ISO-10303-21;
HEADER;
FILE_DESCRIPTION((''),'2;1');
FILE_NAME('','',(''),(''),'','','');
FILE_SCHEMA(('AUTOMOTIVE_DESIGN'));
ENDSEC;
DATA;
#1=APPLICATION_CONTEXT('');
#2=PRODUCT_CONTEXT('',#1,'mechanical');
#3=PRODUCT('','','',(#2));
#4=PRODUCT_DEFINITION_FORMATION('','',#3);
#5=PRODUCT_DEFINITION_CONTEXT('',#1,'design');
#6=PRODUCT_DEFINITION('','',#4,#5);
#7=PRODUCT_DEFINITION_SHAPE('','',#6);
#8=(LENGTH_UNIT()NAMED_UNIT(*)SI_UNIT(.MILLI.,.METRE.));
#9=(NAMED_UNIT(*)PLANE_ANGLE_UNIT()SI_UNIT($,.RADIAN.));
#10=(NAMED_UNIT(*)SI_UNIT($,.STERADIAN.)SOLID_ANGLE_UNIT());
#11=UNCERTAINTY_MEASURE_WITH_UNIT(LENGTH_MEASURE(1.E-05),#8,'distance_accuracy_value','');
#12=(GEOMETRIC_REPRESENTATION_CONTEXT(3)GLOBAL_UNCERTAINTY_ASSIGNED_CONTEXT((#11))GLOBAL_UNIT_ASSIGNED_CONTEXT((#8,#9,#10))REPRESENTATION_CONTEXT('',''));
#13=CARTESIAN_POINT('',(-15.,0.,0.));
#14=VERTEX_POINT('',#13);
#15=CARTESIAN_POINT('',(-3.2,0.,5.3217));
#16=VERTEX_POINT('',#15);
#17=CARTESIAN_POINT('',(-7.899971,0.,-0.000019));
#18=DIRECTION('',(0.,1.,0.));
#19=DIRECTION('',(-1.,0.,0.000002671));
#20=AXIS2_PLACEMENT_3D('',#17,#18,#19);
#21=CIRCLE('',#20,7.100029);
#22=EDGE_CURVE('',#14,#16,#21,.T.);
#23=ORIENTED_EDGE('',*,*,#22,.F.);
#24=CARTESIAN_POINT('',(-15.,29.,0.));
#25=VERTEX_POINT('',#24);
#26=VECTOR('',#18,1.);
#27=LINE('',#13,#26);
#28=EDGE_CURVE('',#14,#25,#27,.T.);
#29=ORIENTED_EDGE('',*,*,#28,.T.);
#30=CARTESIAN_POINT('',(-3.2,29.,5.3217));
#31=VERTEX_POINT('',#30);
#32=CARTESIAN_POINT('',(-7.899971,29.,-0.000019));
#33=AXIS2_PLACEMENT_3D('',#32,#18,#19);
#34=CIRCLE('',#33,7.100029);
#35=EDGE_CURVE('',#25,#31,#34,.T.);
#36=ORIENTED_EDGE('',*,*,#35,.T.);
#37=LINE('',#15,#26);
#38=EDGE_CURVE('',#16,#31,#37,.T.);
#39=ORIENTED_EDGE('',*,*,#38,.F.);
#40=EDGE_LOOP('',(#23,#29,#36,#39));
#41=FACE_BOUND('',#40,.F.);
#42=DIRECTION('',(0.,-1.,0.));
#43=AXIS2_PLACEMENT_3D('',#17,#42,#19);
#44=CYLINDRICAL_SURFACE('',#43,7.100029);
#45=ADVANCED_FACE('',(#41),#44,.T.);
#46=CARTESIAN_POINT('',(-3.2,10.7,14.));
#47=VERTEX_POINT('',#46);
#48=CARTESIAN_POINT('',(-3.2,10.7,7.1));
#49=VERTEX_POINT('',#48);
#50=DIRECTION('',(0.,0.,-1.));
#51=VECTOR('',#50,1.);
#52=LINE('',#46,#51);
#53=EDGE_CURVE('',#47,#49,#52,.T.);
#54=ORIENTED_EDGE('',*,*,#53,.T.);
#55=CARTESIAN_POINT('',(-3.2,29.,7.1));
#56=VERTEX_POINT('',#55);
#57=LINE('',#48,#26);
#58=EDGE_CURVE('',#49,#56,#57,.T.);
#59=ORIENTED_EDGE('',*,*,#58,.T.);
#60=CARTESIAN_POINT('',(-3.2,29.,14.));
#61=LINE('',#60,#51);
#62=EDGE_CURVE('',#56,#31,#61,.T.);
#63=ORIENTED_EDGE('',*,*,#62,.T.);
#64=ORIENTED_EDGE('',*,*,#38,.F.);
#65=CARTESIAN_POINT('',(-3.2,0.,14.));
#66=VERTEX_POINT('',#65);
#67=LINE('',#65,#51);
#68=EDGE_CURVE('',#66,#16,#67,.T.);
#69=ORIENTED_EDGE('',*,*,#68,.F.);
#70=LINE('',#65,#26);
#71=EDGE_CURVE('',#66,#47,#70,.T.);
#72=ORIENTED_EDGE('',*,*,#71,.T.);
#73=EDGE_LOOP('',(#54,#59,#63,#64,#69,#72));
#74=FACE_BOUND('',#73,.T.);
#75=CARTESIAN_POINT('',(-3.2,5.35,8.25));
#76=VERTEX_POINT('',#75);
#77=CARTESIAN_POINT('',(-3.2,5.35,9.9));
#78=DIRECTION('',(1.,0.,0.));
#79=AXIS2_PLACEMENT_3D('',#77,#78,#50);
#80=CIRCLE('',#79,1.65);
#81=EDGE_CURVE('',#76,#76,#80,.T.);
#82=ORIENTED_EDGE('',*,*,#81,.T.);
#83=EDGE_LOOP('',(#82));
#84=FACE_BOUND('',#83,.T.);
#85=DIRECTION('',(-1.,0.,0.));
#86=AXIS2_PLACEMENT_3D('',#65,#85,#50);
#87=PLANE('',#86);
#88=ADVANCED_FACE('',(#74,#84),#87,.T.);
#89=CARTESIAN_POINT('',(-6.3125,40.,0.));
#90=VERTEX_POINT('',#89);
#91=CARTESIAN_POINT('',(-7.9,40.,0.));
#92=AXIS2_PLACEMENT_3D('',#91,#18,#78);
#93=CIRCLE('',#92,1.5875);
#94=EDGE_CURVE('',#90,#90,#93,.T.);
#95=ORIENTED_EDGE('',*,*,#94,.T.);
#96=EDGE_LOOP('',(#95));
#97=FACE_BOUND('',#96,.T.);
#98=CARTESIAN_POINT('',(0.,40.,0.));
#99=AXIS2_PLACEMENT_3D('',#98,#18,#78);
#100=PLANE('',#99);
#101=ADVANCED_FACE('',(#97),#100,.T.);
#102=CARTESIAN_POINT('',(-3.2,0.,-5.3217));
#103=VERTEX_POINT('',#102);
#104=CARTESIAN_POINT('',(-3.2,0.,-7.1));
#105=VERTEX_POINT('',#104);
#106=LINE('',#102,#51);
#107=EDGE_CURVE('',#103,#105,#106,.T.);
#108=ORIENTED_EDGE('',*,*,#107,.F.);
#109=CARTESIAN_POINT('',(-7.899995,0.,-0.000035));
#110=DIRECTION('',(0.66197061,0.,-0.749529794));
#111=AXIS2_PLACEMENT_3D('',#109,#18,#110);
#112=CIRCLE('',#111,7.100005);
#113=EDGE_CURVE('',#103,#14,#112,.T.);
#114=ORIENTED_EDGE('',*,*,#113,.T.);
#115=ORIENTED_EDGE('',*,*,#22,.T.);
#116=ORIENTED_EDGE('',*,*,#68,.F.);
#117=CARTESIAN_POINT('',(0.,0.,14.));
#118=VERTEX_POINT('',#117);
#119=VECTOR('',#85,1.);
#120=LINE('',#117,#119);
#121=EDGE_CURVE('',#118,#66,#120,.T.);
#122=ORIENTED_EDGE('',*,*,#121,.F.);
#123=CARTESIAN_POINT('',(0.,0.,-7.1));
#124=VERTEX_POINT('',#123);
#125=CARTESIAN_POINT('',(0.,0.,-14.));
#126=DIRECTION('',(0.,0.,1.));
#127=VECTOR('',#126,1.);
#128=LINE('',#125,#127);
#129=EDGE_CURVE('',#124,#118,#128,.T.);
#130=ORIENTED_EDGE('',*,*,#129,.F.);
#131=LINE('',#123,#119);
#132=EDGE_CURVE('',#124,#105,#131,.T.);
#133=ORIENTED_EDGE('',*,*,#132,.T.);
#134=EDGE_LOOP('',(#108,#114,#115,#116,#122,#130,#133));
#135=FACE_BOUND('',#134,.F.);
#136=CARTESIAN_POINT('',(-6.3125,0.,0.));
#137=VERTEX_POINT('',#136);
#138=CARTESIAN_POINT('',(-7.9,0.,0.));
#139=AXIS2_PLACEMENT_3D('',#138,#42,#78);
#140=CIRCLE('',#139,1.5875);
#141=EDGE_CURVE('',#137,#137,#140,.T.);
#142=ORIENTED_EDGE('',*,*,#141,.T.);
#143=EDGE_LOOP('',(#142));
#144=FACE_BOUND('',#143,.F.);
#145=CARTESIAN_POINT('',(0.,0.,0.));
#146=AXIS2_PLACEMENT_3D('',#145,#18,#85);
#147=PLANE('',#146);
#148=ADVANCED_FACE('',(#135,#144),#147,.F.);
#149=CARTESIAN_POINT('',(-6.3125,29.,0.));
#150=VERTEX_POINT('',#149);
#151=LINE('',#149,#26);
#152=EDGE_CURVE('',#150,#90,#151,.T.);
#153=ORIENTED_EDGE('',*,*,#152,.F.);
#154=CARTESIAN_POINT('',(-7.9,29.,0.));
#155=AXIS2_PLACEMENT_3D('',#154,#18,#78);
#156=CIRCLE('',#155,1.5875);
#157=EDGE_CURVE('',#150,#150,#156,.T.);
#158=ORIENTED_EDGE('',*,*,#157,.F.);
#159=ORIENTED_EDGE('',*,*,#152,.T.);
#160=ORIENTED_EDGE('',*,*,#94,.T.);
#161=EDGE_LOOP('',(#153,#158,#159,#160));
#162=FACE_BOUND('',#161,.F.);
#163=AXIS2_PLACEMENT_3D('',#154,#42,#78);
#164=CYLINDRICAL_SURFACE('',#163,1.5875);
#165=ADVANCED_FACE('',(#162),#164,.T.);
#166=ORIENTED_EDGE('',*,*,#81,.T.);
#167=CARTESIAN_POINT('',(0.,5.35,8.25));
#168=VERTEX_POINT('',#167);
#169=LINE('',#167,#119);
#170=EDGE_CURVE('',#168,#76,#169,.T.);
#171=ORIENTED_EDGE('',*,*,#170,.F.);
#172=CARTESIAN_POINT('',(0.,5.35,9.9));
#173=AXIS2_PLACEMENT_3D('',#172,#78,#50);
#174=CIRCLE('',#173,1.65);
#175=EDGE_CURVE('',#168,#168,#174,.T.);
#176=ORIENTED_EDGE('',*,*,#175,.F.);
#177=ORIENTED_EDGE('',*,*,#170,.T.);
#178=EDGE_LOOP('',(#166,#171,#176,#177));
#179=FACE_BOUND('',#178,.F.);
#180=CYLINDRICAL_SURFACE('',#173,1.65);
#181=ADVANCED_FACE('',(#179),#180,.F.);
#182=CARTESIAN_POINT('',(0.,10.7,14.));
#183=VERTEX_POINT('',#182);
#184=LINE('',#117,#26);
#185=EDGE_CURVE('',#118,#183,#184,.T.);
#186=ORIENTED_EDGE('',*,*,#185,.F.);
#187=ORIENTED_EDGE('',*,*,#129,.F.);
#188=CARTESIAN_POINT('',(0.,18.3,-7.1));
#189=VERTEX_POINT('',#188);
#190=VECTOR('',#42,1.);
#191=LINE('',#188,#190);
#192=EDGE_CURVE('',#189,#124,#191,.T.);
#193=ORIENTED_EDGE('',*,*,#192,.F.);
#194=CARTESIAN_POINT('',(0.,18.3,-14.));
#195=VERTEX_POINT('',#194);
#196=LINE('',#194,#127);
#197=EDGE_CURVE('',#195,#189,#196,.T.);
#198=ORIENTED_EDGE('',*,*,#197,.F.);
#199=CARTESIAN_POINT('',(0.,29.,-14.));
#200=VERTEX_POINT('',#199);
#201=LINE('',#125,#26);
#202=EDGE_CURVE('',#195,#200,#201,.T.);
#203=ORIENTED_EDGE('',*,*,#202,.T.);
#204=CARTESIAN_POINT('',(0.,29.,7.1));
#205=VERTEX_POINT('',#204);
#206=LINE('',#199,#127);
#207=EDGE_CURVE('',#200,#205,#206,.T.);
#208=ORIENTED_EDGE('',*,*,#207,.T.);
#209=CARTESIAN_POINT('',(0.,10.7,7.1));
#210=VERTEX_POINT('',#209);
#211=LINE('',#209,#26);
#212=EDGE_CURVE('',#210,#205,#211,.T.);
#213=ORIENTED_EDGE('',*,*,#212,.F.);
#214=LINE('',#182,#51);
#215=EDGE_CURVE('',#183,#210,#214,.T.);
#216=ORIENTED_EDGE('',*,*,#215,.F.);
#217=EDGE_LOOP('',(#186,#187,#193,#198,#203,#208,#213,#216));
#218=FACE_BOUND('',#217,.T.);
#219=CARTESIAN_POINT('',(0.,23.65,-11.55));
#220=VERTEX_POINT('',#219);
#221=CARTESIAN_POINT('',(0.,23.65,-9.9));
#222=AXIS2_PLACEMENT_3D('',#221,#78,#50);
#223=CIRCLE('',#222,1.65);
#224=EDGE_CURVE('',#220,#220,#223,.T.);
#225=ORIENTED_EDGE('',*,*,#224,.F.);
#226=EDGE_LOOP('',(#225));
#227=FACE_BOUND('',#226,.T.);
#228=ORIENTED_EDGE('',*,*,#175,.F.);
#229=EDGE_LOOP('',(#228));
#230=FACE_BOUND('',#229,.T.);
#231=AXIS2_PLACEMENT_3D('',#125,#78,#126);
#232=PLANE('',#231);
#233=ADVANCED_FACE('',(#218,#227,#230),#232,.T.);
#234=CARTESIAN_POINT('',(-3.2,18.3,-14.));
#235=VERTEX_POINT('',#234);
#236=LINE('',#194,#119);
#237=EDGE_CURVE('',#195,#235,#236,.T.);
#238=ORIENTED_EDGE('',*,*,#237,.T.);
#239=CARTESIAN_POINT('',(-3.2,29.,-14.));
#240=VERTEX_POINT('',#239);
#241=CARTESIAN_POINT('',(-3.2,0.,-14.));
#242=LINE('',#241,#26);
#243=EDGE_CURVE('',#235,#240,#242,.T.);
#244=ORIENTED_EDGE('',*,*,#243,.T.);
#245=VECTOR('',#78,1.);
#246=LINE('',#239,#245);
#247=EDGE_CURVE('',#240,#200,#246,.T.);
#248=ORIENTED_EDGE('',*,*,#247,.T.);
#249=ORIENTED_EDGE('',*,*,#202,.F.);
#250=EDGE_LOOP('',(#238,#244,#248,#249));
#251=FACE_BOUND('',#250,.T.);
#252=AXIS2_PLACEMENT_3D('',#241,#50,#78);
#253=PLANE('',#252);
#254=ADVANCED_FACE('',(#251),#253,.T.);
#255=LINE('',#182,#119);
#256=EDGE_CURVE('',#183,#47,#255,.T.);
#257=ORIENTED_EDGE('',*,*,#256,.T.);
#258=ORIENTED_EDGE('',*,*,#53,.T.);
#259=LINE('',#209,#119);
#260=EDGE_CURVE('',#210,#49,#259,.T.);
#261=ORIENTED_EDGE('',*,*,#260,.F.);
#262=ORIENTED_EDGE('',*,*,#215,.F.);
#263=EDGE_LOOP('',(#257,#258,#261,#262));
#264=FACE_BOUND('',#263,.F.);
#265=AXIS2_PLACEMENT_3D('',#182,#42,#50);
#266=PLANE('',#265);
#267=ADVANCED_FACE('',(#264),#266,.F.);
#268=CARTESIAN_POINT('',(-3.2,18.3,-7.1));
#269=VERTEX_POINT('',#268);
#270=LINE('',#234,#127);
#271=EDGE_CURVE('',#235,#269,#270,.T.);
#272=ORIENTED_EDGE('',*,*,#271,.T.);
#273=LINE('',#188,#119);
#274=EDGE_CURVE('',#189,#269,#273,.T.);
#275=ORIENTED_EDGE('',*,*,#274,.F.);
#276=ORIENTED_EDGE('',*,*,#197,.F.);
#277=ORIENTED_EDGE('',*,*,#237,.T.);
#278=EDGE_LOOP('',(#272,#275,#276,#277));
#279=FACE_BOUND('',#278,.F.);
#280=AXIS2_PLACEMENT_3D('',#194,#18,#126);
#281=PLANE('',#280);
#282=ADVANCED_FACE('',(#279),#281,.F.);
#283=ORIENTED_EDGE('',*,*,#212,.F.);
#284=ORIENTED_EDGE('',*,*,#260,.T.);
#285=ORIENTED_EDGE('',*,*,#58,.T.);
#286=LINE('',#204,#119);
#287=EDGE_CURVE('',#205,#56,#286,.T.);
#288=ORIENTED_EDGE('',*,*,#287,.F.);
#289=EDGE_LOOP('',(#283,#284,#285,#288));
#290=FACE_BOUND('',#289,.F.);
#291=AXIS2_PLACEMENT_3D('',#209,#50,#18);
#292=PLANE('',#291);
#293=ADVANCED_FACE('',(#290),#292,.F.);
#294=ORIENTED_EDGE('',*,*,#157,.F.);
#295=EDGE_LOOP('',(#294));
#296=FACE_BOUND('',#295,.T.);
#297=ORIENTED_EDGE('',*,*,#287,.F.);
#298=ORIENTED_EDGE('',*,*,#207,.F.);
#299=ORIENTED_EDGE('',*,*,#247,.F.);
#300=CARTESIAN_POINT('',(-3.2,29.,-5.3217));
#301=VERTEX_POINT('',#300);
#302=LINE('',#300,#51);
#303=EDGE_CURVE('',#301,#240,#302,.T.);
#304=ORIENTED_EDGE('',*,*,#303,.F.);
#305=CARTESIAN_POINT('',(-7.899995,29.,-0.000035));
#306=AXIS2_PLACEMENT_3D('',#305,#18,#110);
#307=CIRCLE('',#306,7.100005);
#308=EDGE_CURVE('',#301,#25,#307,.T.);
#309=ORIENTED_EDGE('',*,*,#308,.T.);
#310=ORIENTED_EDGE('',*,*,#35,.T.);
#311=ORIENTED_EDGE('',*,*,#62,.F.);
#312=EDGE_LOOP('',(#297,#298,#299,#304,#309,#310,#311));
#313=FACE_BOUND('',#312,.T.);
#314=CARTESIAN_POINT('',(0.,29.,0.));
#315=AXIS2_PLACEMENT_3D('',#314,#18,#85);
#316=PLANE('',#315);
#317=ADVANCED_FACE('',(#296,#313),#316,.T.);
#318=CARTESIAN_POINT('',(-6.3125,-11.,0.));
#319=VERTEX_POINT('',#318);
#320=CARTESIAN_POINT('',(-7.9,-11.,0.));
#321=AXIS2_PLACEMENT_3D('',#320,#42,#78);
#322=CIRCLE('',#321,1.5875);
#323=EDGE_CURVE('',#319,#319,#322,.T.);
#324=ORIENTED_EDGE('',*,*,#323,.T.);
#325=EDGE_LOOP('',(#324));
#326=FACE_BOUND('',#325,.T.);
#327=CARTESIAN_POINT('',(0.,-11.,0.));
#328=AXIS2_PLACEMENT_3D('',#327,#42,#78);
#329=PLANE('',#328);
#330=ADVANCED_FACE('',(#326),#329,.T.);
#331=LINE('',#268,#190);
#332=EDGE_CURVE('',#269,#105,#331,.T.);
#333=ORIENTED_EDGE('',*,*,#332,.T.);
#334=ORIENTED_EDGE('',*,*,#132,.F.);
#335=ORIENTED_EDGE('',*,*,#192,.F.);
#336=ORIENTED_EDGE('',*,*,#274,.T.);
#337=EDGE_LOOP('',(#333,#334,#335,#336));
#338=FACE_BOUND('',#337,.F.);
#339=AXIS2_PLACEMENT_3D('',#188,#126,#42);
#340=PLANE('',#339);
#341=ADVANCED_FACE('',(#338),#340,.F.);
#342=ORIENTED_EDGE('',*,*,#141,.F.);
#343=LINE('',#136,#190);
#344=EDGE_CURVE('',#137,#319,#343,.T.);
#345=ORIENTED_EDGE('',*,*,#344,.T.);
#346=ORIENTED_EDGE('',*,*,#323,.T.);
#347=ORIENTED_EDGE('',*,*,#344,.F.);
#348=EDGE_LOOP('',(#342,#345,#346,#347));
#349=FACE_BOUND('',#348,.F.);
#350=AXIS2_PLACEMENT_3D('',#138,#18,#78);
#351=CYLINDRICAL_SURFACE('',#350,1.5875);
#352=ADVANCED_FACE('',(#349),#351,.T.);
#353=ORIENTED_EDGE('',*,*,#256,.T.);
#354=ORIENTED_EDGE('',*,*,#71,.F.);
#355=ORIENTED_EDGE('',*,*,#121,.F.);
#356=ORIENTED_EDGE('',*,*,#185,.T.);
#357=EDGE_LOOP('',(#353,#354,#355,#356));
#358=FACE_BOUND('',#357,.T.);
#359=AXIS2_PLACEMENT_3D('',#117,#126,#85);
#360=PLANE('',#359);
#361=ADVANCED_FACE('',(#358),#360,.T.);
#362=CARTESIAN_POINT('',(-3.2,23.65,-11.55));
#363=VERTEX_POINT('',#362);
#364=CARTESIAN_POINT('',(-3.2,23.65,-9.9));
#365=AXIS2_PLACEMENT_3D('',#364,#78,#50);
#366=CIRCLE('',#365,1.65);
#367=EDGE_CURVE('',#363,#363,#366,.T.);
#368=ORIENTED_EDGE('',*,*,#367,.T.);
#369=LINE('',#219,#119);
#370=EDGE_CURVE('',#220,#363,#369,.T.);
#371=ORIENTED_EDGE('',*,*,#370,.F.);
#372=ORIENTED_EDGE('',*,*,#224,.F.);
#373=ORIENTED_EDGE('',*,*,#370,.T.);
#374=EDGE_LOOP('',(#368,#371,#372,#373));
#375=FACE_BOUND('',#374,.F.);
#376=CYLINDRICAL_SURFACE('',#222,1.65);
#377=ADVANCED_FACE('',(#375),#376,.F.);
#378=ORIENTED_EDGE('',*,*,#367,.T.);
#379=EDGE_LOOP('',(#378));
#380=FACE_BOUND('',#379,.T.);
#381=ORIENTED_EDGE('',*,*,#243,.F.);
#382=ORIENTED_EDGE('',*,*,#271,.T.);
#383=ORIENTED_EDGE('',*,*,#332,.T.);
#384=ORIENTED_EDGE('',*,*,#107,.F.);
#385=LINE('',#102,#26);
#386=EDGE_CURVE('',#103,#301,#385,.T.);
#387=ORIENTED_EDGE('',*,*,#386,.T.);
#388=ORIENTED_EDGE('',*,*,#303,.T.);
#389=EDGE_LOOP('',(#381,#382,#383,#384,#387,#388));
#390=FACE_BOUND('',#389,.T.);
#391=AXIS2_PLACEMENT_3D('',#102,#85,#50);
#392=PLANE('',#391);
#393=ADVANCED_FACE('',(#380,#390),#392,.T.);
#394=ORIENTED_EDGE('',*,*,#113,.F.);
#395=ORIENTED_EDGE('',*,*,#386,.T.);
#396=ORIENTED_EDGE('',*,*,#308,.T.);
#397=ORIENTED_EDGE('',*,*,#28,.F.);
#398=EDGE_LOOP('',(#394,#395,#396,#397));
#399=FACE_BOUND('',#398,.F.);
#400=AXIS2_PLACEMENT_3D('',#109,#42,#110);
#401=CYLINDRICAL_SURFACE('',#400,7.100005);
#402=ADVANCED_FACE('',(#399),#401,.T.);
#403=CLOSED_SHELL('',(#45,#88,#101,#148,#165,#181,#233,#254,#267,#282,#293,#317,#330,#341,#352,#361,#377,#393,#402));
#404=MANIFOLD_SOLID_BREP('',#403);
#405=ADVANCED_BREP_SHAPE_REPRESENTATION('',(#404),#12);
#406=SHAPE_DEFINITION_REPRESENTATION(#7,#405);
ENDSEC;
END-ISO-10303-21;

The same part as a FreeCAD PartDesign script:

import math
import FreeCAD as App
import Part
import Sketcher
Q = App.Units.Quantity

doc = App.newDocument("Part")
body = doc.addObject("PartDesign::Body", "Body")

sketch1 = body.newObject("Sketcher::SketchObject", "Sketch")
sketch1.AttachmentSupport = (doc.getObject("XZ_Plane"), [""])
sketch1.MapMode = "FlatFace"
sketch1.addGeometry([
    Part.LineSegment(App.Vector(-3.2, -14, 0), App.Vector(-3.2, -5.3, 0)),
    Part.ArcOfCircle(Part.Circle(App.Vector(-7.9, 0, 0), App.Vector(0, 0, 1), 7.1), math.radians(180), math.radians(311)),
    Part.ArcOfCircle(Part.Circle(App.Vector(-7.9, 0, 0), App.Vector(0, 0, 1), 7.1), math.radians(49), math.radians(180)),
    Part.LineSegment(App.Vector(-3.2, 5.3, 0), App.Vector(-3.2, 14, 0)),
    Part.LineSegment(App.Vector(-3.2, 14, 0), App.Vector(0, 14, 0)),
    Part.LineSegment(App.Vector(0, 14, 0), App.Vector(0, -14, 0)),
    Part.LineSegment(App.Vector(0, -14, 0), App.Vector(-3.2, -14, 0)),
], False)
sketch1.addConstraint([
    Sketcher.Constraint("Coincident", 0, 2, 1, 2),
    Sketcher.Constraint("Tangent", 1, 1, 2, 2),
    Sketcher.Constraint("Coincident", 2, 1, 3, 1),
    Sketcher.Constraint("Coincident", 3, 2, 4, 1),
    Sketcher.Constraint("Coincident", 4, 2, 5, 1),
    Sketcher.Constraint("Coincident", 5, 2, 6, 1),
    Sketcher.Constraint("Coincident", 6, 2, 0, 1),
    Sketcher.Constraint("Vertical", 0),
    Sketcher.Constraint("Vertical", 3),
    Sketcher.Constraint("Horizontal", 4),
    Sketcher.Constraint("Vertical", 5),
    Sketcher.Constraint("Horizontal", 6),
    Sketcher.Constraint("Equal", 1, 2),
    Sketcher.Constraint("Symmetric", 4, 2, 5, 2, -1, 1),
    Sketcher.Constraint("Symmetric", 0, 2, 2, 1, -1),
    Sketcher.Constraint("PointOnObject", 1, 1, -1),
    Sketcher.Constraint("Radius", 1, Q("7.1 mm")),
    Sketcher.Constraint("DistanceY", 5, 2, 5, 1, Q("28 mm")),
    Sketcher.Constraint("DistanceX", 4, 1, 4, 2, Q("3.2 mm")),
    Sketcher.Constraint("DistanceX", 1, 1, -1, 1, Q("15 mm")),
])
pad1 = body.newObject("PartDesign::Pad", "Pad")
pad1.Profile = sketch1
pad1.Length = 29
pad1.Reversed = True

sketch2 = body.newObject("Sketcher::SketchObject", "Sketch001")
sketch2.AttachmentSupport = (doc.getObject("YZ_Plane"), [""])
sketch2.MapMode = "FlatFace"
sketch2.addGeometry([
    Part.Circle(App.Vector(23.6, -9.9, 0), App.Vector(0, 0, 1), 1.6),
    Part.Circle(App.Vector(5.3, 9.9, 0), App.Vector(0, 0, 1), 1.6),
    Part.LineSegment(App.Vector(0, -7.1, 0), App.Vector(0, -14, 0)),
    Part.LineSegment(App.Vector(0, -14, 0), App.Vector(18.3, -14, 0)),
    Part.LineSegment(App.Vector(18.3, -14, 0), App.Vector(18.3, -7.1, 0)),
    Part.LineSegment(App.Vector(18.3, -7.1, 0), App.Vector(0, -7.1, 0)),
    Part.LineSegment(App.Vector(29, 14, 0), App.Vector(10.7, 14, 0)),
    Part.LineSegment(App.Vector(10.7, 14, 0), App.Vector(10.7, 7.1, 0)),
    Part.LineSegment(App.Vector(10.7, 7.1, 0), App.Vector(29, 7.1, 0)),
    Part.LineSegment(App.Vector(29, 7.1, 0), App.Vector(29, 14, 0)),
], False)
sketch2.addConstraint([
    Sketcher.Constraint("Coincident", 2, 2, 3, 1),
    Sketcher.Constraint("Coincident", 3, 2, 4, 1),
    Sketcher.Constraint("Coincident", 4, 2, 5, 1),
    Sketcher.Constraint("Coincident", 5, 2, 2, 1),
    Sketcher.Constraint("Coincident", 6, 2, 7, 1),
    Sketcher.Constraint("Coincident", 7, 2, 8, 1),
    Sketcher.Constraint("Coincident", 8, 2, 9, 1),
    Sketcher.Constraint("Coincident", 9, 2, 6, 1),
    Sketcher.Constraint("Vertical", 2),
    Sketcher.Constraint("Horizontal", 3),
    Sketcher.Constraint("Vertical", 4),
    Sketcher.Constraint("Horizontal", 5),
    Sketcher.Constraint("Horizontal", 6),
    Sketcher.Constraint("Vertical", 7),
    Sketcher.Constraint("Horizontal", 8),
    Sketcher.Constraint("Vertical", 9),
    Sketcher.Constraint("Equal", 0, 1),
    Sketcher.Constraint("PointOnObject", 2, 2, -2),
    Sketcher.Constraint("Equal", 5, 6),
    Sketcher.Constraint("Equal", 4, 7),
    Sketcher.Constraint("Diameter", 0, Q("3.3 mm")),
    Sketcher.Constraint("DistanceX", 3, 1, 3, 2, Q("18.3 mm")),
    Sketcher.Constraint("DistanceX", 1, 3, 0, 3, Q("18.3 mm")),
    Sketcher.Constraint("DistanceY", 0, 3, 1, 3, Q("19.8 mm")),
    Sketcher.Constraint("DistanceY", 0, 3, 4, 2, Q("2.8 mm")),
    Sketcher.Constraint("DistanceY", 7, 2, 1, 3, Q("2.8 mm")),
    Sketcher.Constraint("DistanceY", 2, 2, 2, 1, Q("6.9 mm")),
    Sketcher.Constraint("DistanceY", 2, 2, -1, 1, Q("14 mm")),
    Sketcher.Constraint("DistanceX", -1, 1, 8, 2, Q("29 mm")),
    Sketcher.Constraint("DistanceX", -1, 1, 0, 3, Q("23.65 mm")),
])
pocket1 = body.newObject("PartDesign::Pocket", "Pocket")
pocket1.Profile = sketch2
pocket1.Length = 3.2

sketch3 = body.newObject("Sketcher::SketchObject", "Sketch002")
sketch3.AttachmentSupport = (doc.getObject("XZ_Plane"), [""])
sketch3.MapMode = "FlatFace"
sketch3.addGeometry(Part.Circle(App.Vector(-7.9, 0, 0), App.Vector(0, 0, 1), 1.6), False)
sketch3.addConstraint([
    Sketcher.Constraint("PointOnObject", 0, 3, -1),
    Sketcher.Constraint("Diameter", 0, Q("3.175 mm")),
    Sketcher.Constraint("DistanceX", 0, 3, -1, 1, Q("7.9 mm")),
])
pad2 = body.newObject("PartDesign::Pad", "Pad001")
pad2.Profile = sketch3
pad2.Length = 11

sketch4 = body.newObject("Sketcher::SketchObject", "Sketch003")
sketch4.AttachmentSupport = (doc.getObject("XZ_Plane"), [""])
sketch4.MapMode = "FlatFace"
sketch4.AttachmentOffset = App.Placement(App.Vector(0, 0, -29), App.Rotation())
sketch4.addGeometry(Part.Circle(App.Vector(-7.9, 0, 0), App.Vector(0, 0, 1), 1.6), False)
sketch4.addConstraint([
    Sketcher.Constraint("PointOnObject", 0, 3, -1),
    Sketcher.Constraint("Diameter", 0, Q("3.175 mm")),
    Sketcher.Constraint("DistanceX", 0, 3, -1, 1, Q("7.9 mm")),
])
pad3 = body.newObject("PartDesign::Pad", "Pad002")
pad3.Profile = sketch4
pad3.Length = 11
pad3.Reversed = True

doc.recompute()
